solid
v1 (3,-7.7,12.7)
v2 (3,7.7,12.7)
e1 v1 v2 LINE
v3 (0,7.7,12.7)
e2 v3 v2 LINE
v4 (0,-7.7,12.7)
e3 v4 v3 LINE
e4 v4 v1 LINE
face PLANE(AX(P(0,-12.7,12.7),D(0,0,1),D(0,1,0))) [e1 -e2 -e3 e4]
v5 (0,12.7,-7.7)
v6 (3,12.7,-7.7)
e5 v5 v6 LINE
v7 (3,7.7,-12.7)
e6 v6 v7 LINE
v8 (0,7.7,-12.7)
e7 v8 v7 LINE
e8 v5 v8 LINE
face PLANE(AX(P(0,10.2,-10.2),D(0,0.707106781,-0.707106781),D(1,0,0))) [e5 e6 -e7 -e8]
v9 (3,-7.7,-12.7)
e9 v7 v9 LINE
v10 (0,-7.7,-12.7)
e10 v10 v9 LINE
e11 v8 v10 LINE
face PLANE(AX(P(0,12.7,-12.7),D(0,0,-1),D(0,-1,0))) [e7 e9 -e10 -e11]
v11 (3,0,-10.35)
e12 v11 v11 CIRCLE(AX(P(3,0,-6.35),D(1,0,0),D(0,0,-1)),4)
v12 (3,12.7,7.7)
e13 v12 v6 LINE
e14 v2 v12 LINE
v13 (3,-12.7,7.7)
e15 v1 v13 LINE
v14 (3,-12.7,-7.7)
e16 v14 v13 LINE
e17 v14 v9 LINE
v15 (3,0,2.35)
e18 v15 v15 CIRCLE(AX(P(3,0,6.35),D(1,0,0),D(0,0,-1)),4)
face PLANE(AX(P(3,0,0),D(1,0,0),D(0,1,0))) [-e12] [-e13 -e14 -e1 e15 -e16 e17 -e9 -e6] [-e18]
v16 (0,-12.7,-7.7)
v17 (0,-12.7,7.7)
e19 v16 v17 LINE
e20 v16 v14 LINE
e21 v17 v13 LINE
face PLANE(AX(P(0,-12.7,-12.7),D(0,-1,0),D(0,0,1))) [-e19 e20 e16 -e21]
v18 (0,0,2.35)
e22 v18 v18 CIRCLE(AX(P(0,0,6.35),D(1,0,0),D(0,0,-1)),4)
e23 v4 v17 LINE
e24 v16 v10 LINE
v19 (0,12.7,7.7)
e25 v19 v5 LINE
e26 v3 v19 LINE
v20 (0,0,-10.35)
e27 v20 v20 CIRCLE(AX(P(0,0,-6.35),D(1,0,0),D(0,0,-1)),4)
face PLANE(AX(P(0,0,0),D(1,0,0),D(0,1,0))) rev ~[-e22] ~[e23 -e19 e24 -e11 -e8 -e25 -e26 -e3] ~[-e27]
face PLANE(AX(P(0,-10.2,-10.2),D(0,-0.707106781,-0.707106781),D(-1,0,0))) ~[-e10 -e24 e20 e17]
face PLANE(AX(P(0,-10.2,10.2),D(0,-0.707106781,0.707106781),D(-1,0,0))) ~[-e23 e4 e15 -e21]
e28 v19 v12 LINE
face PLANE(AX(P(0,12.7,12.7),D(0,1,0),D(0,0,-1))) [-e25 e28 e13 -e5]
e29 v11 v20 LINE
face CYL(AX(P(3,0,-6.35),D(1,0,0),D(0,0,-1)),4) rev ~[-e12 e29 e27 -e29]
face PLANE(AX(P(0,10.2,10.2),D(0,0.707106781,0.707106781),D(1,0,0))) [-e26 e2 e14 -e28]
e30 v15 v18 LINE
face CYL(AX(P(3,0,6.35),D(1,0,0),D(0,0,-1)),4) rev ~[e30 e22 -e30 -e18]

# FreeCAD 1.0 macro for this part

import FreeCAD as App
import Part
import Sketcher


def edges_at(feature, points):
    """Names of the edges that pass closest to the given points."""
    edges = feature.Shape.Edges
    near = lambda p: min(range(len(edges)), key=lambda i: edges[i].distToShape(Part.Vertex(*p))[0])
    return sorted({f"Edge{near(p) + 1}" for p in points})

doc = App.newDocument("Part")
body = doc.addObject("PartDesign::Body", "Body")

# Sketch on YZ plane
sketch1 = doc.addObject("Sketcher::SketchObject", "Sketch")
body.addObject(sketch1)
sketch1.AttachmentSupport = (doc.YZ_Plane, [""])
sketch1.MapMode = "FlatFace"
sketch1.addGeometry([
    Part.LineSegment(App.Vector(12.7, 12.7, 0), App.Vector(-12.7, 12.7, 0)),
    Part.LineSegment(App.Vector(-12.7, 12.7, 0), App.Vector(-12.7, -12.7, 0)),
    Part.LineSegment(App.Vector(-12.7, -12.7, 0), App.Vector(12.7, -12.7, 0)),
    Part.LineSegment(App.Vector(12.7, -12.7, 0), App.Vector(12.7, 12.7, 0)),
], False)
sketch1.addConstraint([
    Sketcher.Constraint("Coincident", 0, 2, 1, 1),
    Sketcher.Constraint("Coincident", 1, 2, 2, 1),
    Sketcher.Constraint("Coincident", 2, 2, 3, 1),
    Sketcher.Constraint("Coincident", 3, 2, 0, 1),
    Sketcher.Constraint("Horizontal", 0),
    Sketcher.Constraint("Vertical", 1),
    Sketcher.Constraint("Horizontal", 2),
    Sketcher.Constraint("Vertical", 3),
    Sketcher.Constraint("Symmetric", 0, 2, 2, 2, -1, 1),
    Sketcher.Constraint("Equal", 2, 1),
    Sketcher.Constraint("DistanceX", 0, 2, 0, 1, 25.4),
])
pad1 = doc.addObject("PartDesign::Pad", "Pad")
body.addObject(pad1)
pad1.Profile = sketch1
pad1.Length = 3

# Sketch on YZ plane
sketch2 = doc.addObject("Sketcher::SketchObject", "Sketch001")
body.addObject(sketch2)
sketch2.AttachmentSupport = (doc.YZ_Plane, [""])
sketch2.MapMode = "FlatFace"
sketch2.AttachmentOffset = App.Placement(App.Vector(0, 0, 3), App.Rotation())
sketch2.addGeometry([
    Part.Circle(App.Vector(0, 6.35, 0), App.Vector(0, 0, 1), 4),
    Part.Circle(App.Vector(0, -6.35, 0), App.Vector(0, 0, 1), 4),
], False)
sketch2.addConstraint([
    Sketcher.Constraint("Equal", 0, 1),
    Sketcher.Constraint("Symmetric", 0, 3, 1, 3, -1, 1),
    Sketcher.Constraint("PointOnObject", 0, 3, -2),
    Sketcher.Constraint("Diameter", 0, 8.0),
    Sketcher.Constraint("DistanceY", -1, 1, 0, 3, 6.35),
])
pocket1 = doc.addObject("PartDesign::Pocket", "Pocket")
body.addObject(pocket1)
pocket1.Profile = sketch2
pocket1.Length = 3
doc.recompute()

chamfer = doc.addObject("PartDesign::Chamfer", "Chamfer")
body.addObject(chamfer)
chamfer.Base = (pocket1, edges_at(pocket1, [
    (1.5, -12.7, -12.7),
    (1.5, -12.7, 12.7),
    (1.5, 12.7, 12.7),
    (1.5, 12.7, -12.7),
]))
chamfer.Size = 5

doc.recompute()
